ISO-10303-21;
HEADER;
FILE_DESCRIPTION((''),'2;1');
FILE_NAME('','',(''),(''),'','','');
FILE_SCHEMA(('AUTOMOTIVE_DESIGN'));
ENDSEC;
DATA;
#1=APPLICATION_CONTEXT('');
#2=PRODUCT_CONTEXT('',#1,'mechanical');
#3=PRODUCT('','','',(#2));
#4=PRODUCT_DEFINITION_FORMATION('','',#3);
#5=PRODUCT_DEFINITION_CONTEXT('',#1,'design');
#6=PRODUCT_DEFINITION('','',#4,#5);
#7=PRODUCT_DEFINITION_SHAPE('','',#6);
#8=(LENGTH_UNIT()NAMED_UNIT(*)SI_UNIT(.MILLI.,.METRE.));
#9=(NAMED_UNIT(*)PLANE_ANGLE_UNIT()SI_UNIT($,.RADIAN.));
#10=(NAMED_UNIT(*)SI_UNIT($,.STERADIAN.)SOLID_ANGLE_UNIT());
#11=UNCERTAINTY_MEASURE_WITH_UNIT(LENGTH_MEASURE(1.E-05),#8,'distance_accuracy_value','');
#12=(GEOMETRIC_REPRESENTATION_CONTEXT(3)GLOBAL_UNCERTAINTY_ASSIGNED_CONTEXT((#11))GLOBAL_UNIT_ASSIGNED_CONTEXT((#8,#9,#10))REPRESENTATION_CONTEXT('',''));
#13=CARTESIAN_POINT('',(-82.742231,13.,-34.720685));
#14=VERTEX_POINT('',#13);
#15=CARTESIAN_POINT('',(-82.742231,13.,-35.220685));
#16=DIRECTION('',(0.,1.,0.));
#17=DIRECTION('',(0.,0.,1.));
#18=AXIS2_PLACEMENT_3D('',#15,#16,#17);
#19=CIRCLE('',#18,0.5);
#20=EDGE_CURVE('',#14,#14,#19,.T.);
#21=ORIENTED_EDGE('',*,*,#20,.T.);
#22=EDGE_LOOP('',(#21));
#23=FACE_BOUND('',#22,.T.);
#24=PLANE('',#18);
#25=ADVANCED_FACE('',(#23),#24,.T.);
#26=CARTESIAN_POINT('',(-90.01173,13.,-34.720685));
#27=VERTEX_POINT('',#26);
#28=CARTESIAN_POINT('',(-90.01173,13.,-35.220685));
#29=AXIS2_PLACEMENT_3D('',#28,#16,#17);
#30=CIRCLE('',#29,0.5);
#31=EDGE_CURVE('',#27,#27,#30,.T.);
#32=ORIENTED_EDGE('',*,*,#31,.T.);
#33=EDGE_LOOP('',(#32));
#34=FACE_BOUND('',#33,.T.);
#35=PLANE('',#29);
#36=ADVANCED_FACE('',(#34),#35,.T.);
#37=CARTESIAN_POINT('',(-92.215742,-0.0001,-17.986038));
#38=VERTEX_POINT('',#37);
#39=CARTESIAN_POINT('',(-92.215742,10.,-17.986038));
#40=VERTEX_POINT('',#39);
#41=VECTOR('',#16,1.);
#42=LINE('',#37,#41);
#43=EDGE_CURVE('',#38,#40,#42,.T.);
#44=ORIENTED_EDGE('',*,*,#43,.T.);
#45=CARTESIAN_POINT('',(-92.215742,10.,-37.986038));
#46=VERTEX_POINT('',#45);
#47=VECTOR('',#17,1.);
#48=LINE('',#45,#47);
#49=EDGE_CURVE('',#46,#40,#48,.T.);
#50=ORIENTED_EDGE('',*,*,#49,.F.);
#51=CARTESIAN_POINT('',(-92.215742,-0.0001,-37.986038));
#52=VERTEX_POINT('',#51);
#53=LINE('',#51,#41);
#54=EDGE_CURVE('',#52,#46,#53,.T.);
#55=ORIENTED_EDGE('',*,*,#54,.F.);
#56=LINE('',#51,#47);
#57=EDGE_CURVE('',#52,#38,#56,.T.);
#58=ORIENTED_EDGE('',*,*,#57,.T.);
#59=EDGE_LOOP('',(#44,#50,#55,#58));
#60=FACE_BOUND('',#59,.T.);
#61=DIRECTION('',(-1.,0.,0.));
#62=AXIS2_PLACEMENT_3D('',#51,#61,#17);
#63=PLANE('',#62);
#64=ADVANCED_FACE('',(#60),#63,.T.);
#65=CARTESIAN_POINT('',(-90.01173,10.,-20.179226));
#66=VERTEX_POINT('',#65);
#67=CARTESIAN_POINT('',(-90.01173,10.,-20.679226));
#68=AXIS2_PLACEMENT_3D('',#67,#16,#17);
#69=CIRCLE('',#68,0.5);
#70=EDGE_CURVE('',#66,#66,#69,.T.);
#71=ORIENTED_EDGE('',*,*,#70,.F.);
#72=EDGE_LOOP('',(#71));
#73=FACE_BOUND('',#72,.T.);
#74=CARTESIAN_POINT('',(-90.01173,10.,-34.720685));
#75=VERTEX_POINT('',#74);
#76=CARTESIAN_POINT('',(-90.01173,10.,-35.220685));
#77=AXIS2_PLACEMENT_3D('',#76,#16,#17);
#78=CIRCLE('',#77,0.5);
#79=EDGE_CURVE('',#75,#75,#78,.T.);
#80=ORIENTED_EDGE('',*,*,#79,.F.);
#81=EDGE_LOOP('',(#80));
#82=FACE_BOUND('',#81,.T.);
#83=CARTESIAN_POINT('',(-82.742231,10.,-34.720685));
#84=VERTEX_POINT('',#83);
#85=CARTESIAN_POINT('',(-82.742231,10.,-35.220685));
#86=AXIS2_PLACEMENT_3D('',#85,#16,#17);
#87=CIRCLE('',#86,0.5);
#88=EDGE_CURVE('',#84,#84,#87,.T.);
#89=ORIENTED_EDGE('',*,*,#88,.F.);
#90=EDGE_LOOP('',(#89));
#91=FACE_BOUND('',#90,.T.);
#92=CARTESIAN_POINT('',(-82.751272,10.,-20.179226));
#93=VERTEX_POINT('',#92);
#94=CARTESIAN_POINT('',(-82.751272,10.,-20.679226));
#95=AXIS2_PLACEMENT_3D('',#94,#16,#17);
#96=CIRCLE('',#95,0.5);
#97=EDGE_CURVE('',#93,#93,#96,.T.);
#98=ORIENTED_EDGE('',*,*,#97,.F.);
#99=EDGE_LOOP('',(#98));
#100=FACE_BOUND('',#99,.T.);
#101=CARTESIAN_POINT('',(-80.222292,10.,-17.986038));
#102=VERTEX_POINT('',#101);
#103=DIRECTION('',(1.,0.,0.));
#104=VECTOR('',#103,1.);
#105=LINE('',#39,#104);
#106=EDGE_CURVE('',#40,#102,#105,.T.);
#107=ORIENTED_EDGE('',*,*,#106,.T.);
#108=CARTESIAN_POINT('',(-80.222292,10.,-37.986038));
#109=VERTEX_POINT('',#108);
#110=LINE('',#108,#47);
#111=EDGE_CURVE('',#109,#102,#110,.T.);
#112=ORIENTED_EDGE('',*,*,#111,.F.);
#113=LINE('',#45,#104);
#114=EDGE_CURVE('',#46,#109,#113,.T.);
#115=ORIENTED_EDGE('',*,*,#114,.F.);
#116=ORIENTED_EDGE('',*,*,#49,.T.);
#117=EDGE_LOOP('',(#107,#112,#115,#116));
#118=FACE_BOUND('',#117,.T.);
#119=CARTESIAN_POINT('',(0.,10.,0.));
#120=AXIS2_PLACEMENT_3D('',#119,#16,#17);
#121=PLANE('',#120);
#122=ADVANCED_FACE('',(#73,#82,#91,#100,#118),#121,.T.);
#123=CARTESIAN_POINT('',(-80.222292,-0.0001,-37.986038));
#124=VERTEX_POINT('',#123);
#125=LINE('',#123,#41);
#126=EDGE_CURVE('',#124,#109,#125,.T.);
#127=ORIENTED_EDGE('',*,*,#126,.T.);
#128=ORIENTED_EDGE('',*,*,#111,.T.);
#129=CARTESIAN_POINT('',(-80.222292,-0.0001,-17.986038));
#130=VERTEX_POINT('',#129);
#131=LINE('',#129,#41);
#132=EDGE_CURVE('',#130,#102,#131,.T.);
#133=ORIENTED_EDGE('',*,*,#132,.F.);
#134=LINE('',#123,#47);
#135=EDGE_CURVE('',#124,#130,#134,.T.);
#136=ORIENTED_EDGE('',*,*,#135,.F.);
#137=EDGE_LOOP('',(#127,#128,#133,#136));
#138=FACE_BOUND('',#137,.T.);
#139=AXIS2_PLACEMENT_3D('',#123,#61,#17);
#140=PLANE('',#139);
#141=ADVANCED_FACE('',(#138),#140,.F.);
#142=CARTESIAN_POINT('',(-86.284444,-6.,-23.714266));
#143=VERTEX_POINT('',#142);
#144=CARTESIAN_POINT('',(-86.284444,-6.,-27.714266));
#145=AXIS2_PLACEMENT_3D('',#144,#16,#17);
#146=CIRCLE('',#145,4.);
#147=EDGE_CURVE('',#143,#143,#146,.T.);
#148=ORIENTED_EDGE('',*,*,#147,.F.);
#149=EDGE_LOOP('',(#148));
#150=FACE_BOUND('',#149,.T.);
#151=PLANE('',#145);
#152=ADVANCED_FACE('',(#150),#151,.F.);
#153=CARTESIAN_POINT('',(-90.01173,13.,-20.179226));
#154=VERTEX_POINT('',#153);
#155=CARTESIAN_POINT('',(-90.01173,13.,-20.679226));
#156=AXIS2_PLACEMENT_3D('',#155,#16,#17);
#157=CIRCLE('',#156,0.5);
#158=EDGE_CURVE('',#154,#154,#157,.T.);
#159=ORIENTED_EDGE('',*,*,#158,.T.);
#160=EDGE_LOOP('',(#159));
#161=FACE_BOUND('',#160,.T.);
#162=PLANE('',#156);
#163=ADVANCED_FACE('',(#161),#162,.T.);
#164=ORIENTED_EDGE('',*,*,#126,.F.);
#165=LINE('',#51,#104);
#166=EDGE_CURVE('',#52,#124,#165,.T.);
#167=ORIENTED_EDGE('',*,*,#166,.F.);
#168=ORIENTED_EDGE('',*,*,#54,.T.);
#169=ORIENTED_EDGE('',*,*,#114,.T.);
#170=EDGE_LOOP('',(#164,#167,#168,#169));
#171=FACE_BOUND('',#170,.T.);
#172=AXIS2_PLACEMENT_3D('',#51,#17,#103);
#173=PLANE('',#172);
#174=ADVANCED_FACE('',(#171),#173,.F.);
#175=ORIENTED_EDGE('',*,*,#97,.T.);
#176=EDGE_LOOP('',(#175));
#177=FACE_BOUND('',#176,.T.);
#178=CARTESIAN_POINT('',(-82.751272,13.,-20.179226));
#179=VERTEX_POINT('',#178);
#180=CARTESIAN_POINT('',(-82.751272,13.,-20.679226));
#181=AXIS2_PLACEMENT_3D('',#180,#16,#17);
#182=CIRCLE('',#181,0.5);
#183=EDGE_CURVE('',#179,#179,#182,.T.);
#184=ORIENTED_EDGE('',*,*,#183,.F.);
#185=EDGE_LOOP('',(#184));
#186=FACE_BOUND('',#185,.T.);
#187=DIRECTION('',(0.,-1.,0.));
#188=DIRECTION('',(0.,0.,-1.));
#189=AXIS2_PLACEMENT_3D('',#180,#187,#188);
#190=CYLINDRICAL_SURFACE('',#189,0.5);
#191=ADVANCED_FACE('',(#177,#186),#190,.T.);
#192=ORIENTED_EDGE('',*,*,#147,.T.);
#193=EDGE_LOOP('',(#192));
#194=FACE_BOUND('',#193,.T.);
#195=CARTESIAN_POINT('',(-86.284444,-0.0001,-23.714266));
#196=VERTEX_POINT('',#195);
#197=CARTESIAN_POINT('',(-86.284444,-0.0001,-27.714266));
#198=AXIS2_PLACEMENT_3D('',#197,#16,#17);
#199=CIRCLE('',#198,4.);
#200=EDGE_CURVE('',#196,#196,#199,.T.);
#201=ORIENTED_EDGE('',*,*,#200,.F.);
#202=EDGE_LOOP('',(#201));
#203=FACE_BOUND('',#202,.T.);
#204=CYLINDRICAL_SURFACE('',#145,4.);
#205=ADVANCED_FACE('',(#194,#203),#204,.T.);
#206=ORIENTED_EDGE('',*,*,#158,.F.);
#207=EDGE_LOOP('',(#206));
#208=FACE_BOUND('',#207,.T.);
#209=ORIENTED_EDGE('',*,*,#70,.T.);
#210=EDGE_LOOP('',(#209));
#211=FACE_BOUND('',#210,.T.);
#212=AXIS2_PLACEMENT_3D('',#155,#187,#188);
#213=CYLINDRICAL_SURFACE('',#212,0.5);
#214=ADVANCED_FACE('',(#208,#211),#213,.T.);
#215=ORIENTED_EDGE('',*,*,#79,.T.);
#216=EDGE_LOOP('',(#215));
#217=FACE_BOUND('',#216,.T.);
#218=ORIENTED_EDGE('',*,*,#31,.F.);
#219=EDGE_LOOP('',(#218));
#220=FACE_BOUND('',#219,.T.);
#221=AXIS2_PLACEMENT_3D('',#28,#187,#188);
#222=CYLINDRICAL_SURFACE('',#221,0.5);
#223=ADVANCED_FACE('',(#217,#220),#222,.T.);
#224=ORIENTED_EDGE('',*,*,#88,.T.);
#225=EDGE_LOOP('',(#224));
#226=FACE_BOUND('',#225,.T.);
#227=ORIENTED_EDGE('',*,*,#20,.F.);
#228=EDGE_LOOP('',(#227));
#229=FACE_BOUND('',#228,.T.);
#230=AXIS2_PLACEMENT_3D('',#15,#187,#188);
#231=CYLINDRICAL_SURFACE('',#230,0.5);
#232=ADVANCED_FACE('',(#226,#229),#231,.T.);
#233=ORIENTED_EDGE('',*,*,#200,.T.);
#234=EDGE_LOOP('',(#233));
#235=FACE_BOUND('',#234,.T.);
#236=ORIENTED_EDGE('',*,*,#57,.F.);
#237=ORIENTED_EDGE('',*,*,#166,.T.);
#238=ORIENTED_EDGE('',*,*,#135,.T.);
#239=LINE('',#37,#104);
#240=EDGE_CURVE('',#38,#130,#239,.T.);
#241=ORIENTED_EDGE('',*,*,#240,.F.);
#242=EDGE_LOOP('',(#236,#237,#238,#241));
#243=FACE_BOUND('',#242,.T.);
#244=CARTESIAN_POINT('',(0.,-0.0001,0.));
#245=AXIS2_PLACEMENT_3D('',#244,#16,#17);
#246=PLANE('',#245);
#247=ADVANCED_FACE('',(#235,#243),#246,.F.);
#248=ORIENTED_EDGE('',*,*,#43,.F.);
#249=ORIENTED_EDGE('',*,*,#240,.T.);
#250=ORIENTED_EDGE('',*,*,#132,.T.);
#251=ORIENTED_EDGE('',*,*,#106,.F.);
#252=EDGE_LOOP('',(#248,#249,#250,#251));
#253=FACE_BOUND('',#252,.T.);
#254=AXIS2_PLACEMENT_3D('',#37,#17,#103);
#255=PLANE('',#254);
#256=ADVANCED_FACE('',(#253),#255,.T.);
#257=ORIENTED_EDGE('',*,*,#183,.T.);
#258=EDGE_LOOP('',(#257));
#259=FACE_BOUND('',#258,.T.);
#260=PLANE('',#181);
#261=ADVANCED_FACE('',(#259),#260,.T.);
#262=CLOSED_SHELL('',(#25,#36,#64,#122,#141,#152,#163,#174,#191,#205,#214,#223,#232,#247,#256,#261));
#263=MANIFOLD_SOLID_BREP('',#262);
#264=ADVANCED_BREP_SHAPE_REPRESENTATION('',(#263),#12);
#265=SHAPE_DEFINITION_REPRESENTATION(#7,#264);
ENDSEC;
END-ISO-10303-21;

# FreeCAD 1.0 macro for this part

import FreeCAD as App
import Part
import Sketcher
from FreeCAD import Vector
Q = App.Units.Quantity

doc = App.newDocument("Part")
body = doc.addObject("PartDesign::Body", "Body")

# Sketch on XZ plane
sketch1 = doc.addObject("Sketcher::SketchObject", "Sketch")
body.addObject(sketch1)
sketch1.AttachmentSupport = (doc.XZ_Plane, [""])
sketch1.MapMode = "FlatFace"
sketch1.addGeometry([
    Part.LineSegment(Vector(-92.215742, -37.986038, 0), Vector(-92.215742, -17.986038, 0)),
    Part.LineSegment(Vector(-92.215742, -17.986038, 0), Vector(-80.222292, -17.986038, 0)),
    Part.LineSegment(Vector(-80.222292, -17.986038, 0), Vector(-80.222292, -37.986038, 0)),
    Part.LineSegment(Vector(-80.222292, -37.986038, 0), Vector(-92.215742, -37.986038, 0)),
], False)
sketch1.addConstraint([
    Sketcher.Constraint("Coincident", 0, 2, 1, 1),
    Sketcher.Constraint("Coincident", 1, 2, 2, 1),
    Sketcher.Constraint("Coincident", 2, 2, 3, 1),
    Sketcher.Constraint("Coincident", 3, 2, 0, 1),
    Sketcher.Constraint("Vertical", 0),
    Sketcher.Constraint("Horizontal", 1),
    Sketcher.Constraint("Vertical", 2),
    Sketcher.Constraint("Horizontal", 3),
    Sketcher.Constraint("DistanceY", 0, 1, 0, 2, Q("20 mm")),
    Sketcher.Constraint("DistanceX", 1, 1, 1, 2, Q("11.99345 mm")),
    Sketcher.Constraint("DistanceY", 0, 2, -1, 1, Q("17.986038 mm")),
    Sketcher.Constraint("DistanceX", 1, 2, -1, 1, Q("80.222292 mm")),
])
pad1 = doc.addObject("PartDesign::Pad", "Pad")
body.addObject(pad1)
pad1.Profile = sketch1
pad1.Type = "TwoLengths"
pad1.Length = 10
pad1.Length2 = 0.0001
pad1.Reversed = True

# Sketch on XZ plane
sketch2 = doc.addObject("Sketcher::SketchObject", "Sketch001")
body.addObject(sketch2)
sketch2.AttachmentSupport = (doc.XZ_Plane, [""])
sketch2.MapMode = "FlatFace"
sketch2.addGeometry(Part.Circle(Vector(-86.284444, -27.714266, 0), Vector(0, 0, 1), 4), False)
sketch2.addConstraint([
    Sketcher.Constraint("Diameter", 0, Q("8 mm")),
    Sketcher.Constraint("DistanceX", 0, 3, -1, 1, Q("86.284444 mm")),
    Sketcher.Constraint("DistanceY", 0, 3, -1, 1, Q("27.714266 mm")),
])
pad2 = doc.addObject("PartDesign::Pad", "Pad001")
body.addObject(pad2)
pad2.Profile = sketch2
pad2.Length = 6

# Sketch on XZ plane
sketch3 = doc.addObject("Sketcher::SketchObject", "Sketch002")
body.addObject(sketch3)
sketch3.AttachmentSupport = (doc.XZ_Plane, [""])
sketch3.MapMode = "FlatFace"
sketch3.AttachmentOffset = App.Placement(Vector(0, 0, -10), App.Rotation())
sketch3.addGeometry([
    Part.Circle(Vector(-90.01173, -35.220685, 0), Vector(0, 0, 1), 0.5),
    Part.Circle(Vector(-82.742231, -35.220685, 0), Vector(0, 0, 1), 0.5),
    Part.Circle(Vector(-82.751272, -20.679226, 0), Vector(0, 0, 1), 0.5),
    Part.Circle(Vector(-90.01173, -20.679226, 0), Vector(0, 0, 1), 0.5),
], False)
sketch3.addConstraint([
    Sketcher.Constraint("Equal", 0, 1),
    Sketcher.Constraint("Equal", 1, 2),
    Sketcher.Constraint("Equal", 2, 3),
    Sketcher.Constraint("Horizontal", 0, 3, 1, 3),
    Sketcher.Constraint("Horizontal", 2, 3, 3, 3),
    Sketcher.Constraint("Vertical", 0, 3, 3, 3),
    Sketcher.Constraint("Diameter", 0, Q("1 mm")),
    Sketcher.Constraint("DistanceX", 0, 3, 1, 3, Q("7.269499 mm")),
    Sketcher.Constraint("DistanceX", 0, 3, -1, 1, Q("90.01173 mm")),
    Sketcher.Constraint("DistanceX", 2, 3, 1, 3, Q("0.009041 mm")),
    Sketcher.Constraint("DistanceY", 1, 3, 2, 3, Q("14.541459 mm")),
    Sketcher.Constraint("DistanceY", 0, 3, -1, 1, Q("35.220685 mm")),
])
pad3 = doc.addObject("PartDesign::Pad", "Pad002")
body.addObject(pad3)
pad3.Profile = sketch3
pad3.Length = 3
pad3.Reversed = True

doc.recompute()
